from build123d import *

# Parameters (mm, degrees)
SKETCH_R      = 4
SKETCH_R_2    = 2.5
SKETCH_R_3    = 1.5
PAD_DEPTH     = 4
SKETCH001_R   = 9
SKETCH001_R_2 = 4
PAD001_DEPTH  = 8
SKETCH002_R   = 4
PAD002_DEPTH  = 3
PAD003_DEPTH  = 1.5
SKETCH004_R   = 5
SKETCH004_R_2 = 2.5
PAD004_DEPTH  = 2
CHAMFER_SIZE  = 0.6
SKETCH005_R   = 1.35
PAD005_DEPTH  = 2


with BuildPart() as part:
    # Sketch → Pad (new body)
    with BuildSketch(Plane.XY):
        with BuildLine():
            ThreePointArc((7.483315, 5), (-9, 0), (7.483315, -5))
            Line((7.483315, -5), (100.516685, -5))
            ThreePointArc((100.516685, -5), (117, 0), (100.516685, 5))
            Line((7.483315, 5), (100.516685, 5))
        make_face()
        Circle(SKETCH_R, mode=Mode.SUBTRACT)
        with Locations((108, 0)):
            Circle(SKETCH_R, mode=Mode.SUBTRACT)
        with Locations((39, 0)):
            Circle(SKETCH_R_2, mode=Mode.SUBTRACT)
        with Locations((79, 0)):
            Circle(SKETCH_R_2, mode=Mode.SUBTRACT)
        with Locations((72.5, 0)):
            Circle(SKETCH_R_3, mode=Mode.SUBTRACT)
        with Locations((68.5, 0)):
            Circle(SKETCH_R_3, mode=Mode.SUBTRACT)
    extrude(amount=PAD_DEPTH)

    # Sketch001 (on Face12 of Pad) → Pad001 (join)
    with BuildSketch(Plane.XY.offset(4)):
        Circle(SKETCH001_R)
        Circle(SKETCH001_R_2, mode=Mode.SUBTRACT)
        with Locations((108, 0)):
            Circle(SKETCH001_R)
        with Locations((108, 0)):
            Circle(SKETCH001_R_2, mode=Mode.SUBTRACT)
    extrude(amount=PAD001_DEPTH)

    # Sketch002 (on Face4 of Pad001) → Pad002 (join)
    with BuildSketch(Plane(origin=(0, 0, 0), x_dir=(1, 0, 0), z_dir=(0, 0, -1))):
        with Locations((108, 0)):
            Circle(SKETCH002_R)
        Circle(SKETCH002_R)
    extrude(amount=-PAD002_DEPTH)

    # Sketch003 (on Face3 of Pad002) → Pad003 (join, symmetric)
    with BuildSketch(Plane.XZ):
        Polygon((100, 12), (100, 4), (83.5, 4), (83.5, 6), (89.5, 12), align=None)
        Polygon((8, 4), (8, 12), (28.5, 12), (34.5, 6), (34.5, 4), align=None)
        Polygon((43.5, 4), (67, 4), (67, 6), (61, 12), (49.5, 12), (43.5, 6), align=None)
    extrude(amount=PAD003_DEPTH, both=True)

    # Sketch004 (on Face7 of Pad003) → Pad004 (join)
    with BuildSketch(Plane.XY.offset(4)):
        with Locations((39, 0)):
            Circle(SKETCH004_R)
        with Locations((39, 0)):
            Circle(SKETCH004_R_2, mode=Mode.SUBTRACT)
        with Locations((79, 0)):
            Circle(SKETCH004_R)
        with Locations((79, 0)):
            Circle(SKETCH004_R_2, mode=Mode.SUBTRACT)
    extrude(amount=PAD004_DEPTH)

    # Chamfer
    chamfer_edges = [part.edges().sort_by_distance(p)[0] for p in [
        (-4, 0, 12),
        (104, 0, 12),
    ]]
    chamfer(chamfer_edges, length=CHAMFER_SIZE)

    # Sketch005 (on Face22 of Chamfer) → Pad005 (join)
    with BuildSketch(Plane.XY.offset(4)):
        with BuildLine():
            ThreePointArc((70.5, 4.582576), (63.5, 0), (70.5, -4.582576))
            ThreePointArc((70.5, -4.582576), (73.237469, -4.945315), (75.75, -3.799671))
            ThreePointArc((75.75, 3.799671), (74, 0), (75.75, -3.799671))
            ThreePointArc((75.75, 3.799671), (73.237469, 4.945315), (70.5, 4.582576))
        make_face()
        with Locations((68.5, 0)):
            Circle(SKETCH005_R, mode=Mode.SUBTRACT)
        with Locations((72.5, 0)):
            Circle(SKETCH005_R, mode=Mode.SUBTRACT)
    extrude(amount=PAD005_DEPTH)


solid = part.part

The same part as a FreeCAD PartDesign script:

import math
import FreeCAD as App
import Part
import Sketcher
Q = App.Units.Quantity


def edges_at(feature, points):
    """Names of the edges that pass closest to the given points."""
    edges = feature.Shape.Edges
    near = lambda p: min(range(len(edges)), key=lambda i: edges[i].distToShape(Part.Vertex(*p))[0])
    return sorted({f"Edge{near(p) + 1}" for p in points})

doc = App.newDocument("Part")
params = doc.addObject("Spreadsheet::Sheet", "Params")
for row, (alias, value) in enumerate([
    ("sketch1_diameter", "8 mm"),
    ("sketch1_diameter2", "5 mm"),
    ("sketch1_diameter3", "3 mm"),
    ("sketch1_radius", "9 mm"),
    ("pad1_length", "4 mm"),
    ("sketch2_diameter", "18 mm"),
    ("sketch2_diameter2", "8 mm"),
    ("pad2_length", "8 mm"),
    ("sketch3_diameter", "8 mm"),
    ("pad3_length", "3 mm"),
    ("sketch4_height", "8 mm"),
    ("sketch4_height2", "2 mm"),
    ("sketch4_width", "10.5 mm"),
    ("sketch4_width2", "26.5 mm"),
    ("sketch4_width3", "23.5 mm"),
    ("pad4_length", "3 mm"),
    ("sketch5_diameter", "10 mm"),
    ("sketch5_diameter2", "5 mm"),
    ("pad5_length", "2 mm"),
    ("chamfer_size", "0.6 mm"),
    ("sketch6_radius", "5 mm"),
    ("sketch6_diameter", "2.7 mm"),
    ("pad6_length", "2 mm"),
], start=1):
    params.set(f"A{row}", alias)
    params.set(f"B{row}", "=" + value)
    params.setAlias(f"B{row}", alias)

body = doc.addObject("PartDesign::Body", "Body")

# Sketch on XY plane
sketch1 = doc.addObject("Sketcher::SketchObject", "Sketch")
body.addObject(sketch1)
sketch1.AttachmentSupport = (doc.XY_Plane, [""])
sketch1.MapMode = "FlatFace"
sketch1.addGeometry([
    Part.ArcOfCircle(Part.Circle(App.Vector(0, 0, 0), App.Vector(0, 0, 1), 9), math.radians(34), math.radians(326)),  # 0
    Part.LineSegment(App.Vector(7.5, -5, 0), App.Vector(100.5, -5, 0)),  # 1
    Part.ArcOfCircle(Part.Circle(App.Vector(108, 0, 0), App.Vector(0, 0, 1), 9), math.radians(-146), math.radians(146)),  # 2
    Part.LineSegment(App.Vector(100.5, 5, 0), App.Vector(7.5, 5, 0)),  # 3
    Part.Circle(App.Vector(0, 0, 0), App.Vector(0, 0, 1), 4),  # 4
    Part.Circle(App.Vector(39, 0, 0), App.Vector(0, 0, 1), 2.5),  # 5
    Part.Circle(App.Vector(68.5, 0, 0), App.Vector(0, 0, 1), 1.5),  # 6
    Part.Circle(App.Vector(72.5, 0, 0), App.Vector(0, 0, 1), 1.5),  # 7
    Part.Circle(App.Vector(79, 0, 0), App.Vector(0, 0, 1), 2.5),  # 8
    Part.Circle(App.Vector(108, 0, 0), App.Vector(0, 0, 1), 4),  # 9
], False)
sketch1.addConstraint([
    Sketcher.Constraint("Coincident", 0, 2, 1, 1),
    Sketcher.Constraint("Coincident", 1, 2, 2, 1),
    Sketcher.Constraint("Coincident", 2, 2, 3, 1),
    Sketcher.Constraint("Coincident", 3, 2, 0, 1),
    Sketcher.Constraint("Horizontal", 1),
    Sketcher.Constraint("Horizontal", 3),
    Sketcher.Constraint("Coincident", 0, 3, -1, 1),
    Sketcher.Constraint("Coincident", 4, 3, -1, 1),
    Sketcher.Constraint("Coincident", 9, 3, 2, 3),
    Sketcher.Constraint("Equal", 0, 2),
    Sketcher.Constraint("Equal", 6, 7),
    Sketcher.Constraint("Equal", 5, 8),
    Sketcher.Constraint("Equal", 4, 9),
    Sketcher.Constraint("Symmetric", 1, 2, 2, 2, -1),
    Sketcher.Constraint("PointOnObject", 5, 3, -1),
    Sketcher.Constraint("PointOnObject", 6, 3, -1),
    Sketcher.Constraint("PointOnObject", 7, 3, -1),
    Sketcher.Constraint("PointOnObject", 8, 3, -1),
    Sketcher.Constraint("Diameter", 4, Q("8 mm")),
    Sketcher.Constraint("Diameter", 5, Q("5 mm")),
    Sketcher.Constraint("Diameter", 6, Q("3 mm")),
    Sketcher.Constraint("Radius", 0, Q("9 mm")),
    Sketcher.Constraint("DistanceX", -1, 1, 2, 3, Q("108 mm")),
    Sketcher.Constraint("DistanceX", -1, 1, 5, 3, Q("39 mm")),
    Sketcher.Constraint("DistanceX", -1, 1, 8, 3, Q("79 mm")),
    Sketcher.Constraint("DistanceY", 0, 2, -1, 1, Q("5 mm")),
    Sketcher.Constraint("DistanceX", 6, 3, 7, 3, Q("4 mm")),
    Sketcher.Constraint("DistanceX", -1, 1, 6, 3, Q("68.5 mm")),
])
sketch1.setExpression("Constraints[18]", "Params.sketch1_diameter")
sketch1.setExpression("Constraints[19]", "Params.sketch1_diameter2")
sketch1.setExpression("Constraints[20]", "Params.sketch1_diameter3")
sketch1.setExpression("Constraints[21]", "Params.sketch1_radius")
pad1 = doc.addObject("PartDesign::Pad", "Pad")
body.addObject(pad1)
pad1.Profile = sketch1
pad1.setExpression("Length", "Params.pad1_length")

# Sketch on XY plane
sketch2 = doc.addObject("Sketcher::SketchObject", "Sketch001")
body.addObject(sketch2)
sketch2.AttachmentSupport = (doc.XY_Plane, [""])
sketch2.MapMode = "FlatFace"
sketch2.AttachmentOffset = App.Placement(App.Vector(0, 0, 4), App.Rotation())
sketch2.addGeometry([
    Part.Circle(App.Vector(0, 0, 0), App.Vector(0, 0, 1), 9),
    Part.Circle(App.Vector(0, 0, 0), App.Vector(0, 0, 1), 4),
    Part.Circle(App.Vector(108, 0, 0), App.Vector(0, 0, 1), 9),
    Part.Circle(App.Vector(108, 0, 0), App.Vector(0, 0, 1), 4),
], False)
sketch2.addConstraint([
    Sketcher.Constraint("Coincident", 0, 3, -1, 1),
    Sketcher.Constraint("Coincident", 1, 3, -1, 1),
    Sketcher.Constraint("Coincident", 3, 3, 2, 3),
    Sketcher.Constraint("Equal", 0, 2),
    Sketcher.Constraint("Equal", 1, 3),
    Sketcher.Constraint("PointOnObject", 2, 3, -1),
    Sketcher.Constraint("Diameter", 0, Q("18 mm")),
    Sketcher.Constraint("Diameter", 1, Q("8 mm")),
    Sketcher.Constraint("DistanceX", -1, 1, 2, 3, Q("108 mm")),
])
sketch2.setExpression("Constraints[6]", "Params.sketch2_diameter")
sketch2.setExpression("Constraints[7]", "Params.sketch2_diameter2")
pad2 = doc.addObject("PartDesign::Pad", "Pad001")
body.addObject(pad2)
pad2.Profile = sketch2
pad2.setExpression("Length", "Params.pad2_length")

# Sketch on XY plane
sketch3 = doc.addObject("Sketcher::SketchObject", "Sketch002")
body.addObject(sketch3)
sketch3.AttachmentSupport = (doc.XY_Plane, [""])
sketch3.MapMode = "FlatFace"
sketch3.addGeometry([
    Part.Circle(App.Vector(108, 0, 0), App.Vector(0, 0, 1), 4),
    Part.Circle(App.Vector(0, 0, 0), App.Vector(0, 0, 1), 4),
], False)
sketch3.addConstraint([
    Sketcher.Constraint("Coincident", 1, 3, -1, 1),
    Sketcher.Constraint("Equal", 0, 1),
    Sketcher.Constraint("PointOnObject", 0, 3, -1),
    Sketcher.Constraint("Diameter", 0, Q("8 mm")),
    Sketcher.Constraint("DistanceX", -1, 1, 0, 3, Q("108 mm")),
])
sketch3.setExpression("Constraints[3]", "Params.sketch3_diameter")
pad3 = doc.addObject("PartDesign::Pad", "Pad002")
body.addObject(pad3)
pad3.Profile = sketch3
pad3.setExpression("Length", "Params.pad3_length")

# Sketch on XZ plane
sketch4 = doc.addObject("Sketcher::SketchObject", "Sketch003")
body.addObject(sketch4)
sketch4.AttachmentSupport = (doc.XZ_Plane, [""])
sketch4.MapMode = "FlatFace"
sketch4.addGeometry([
    Part.LineSegment(App.Vector(100, 4, 0), App.Vector(100, 12, 0)),  # 0
    Part.LineSegment(App.Vector(100, 12, 0), App.Vector(89.5, 12, 0)),  # 1
    Part.LineSegment(App.Vector(89.5, 12, 0), App.Vector(83.5, 6, 0)),  # 2
    Part.LineSegment(App.Vector(83.5, 6, 0), App.Vector(83.5, 4, 0)),  # 3
    Part.LineSegment(App.Vector(83.5, 4, 0), App.Vector(100, 4, 0)),  # 4
    Part.LineSegment(App.Vector(8, 12, 0), App.Vector(8, 4, 0)),  # 5
    Part.LineSegment(App.Vector(8, 4, 0), App.Vector(34.5, 4, 0)),  # 6
    Part.LineSegment(App.Vector(34.5, 4, 0), App.Vector(34.5, 6, 0)),  # 7
    Part.LineSegment(App.Vector(34.5, 6, 0), App.Vector(28.5, 12, 0)),  # 8
    Part.LineSegment(App.Vector(28.5, 12, 0), App.Vector(8, 12, 0)),  # 9
    Part.LineSegment(App.Vector(43.5, 4, 0), App.Vector(67, 4, 0)),  # 10
    Part.LineSegment(App.Vector(67, 4, 0), App.Vector(67, 6, 0)),  # 11
    Part.LineSegment(App.Vector(67, 6, 0), App.Vector(61, 12, 0)),  # 12
    Part.LineSegment(App.Vector(61, 12, 0), App.Vector(49.5, 12, 0)),  # 13
    Part.LineSegment(App.Vector(49.5, 12, 0), App.Vector(43.5, 6, 0)),  # 14
    Part.LineSegment(App.Vector(43.5, 6, 0), App.Vector(43.5, 4, 0)),  # 15
], False)
sketch4.addConstraint([
    Sketcher.Constraint("Coincident", 0, 2, 1, 1),
    Sketcher.Constraint("Coincident", 1, 2, 2, 1),
    Sketcher.Constraint("Coincident", 2, 2, 3, 1),
    Sketcher.Constraint("Coincident", 3, 2, 4, 1),
    Sketcher.Constraint("Coincident", 4, 2, 0, 1),
    Sketcher.Constraint("Coincident", 5, 2, 6, 1),
    Sketcher.Constraint("Coincident", 6, 2, 7, 1),
    Sketcher.Constraint("Coincident", 7, 2, 8, 1),
    Sketcher.Constraint("Coincident", 8, 2, 9, 1),
    Sketcher.Constraint("Coincident", 9, 2, 5, 1),
    Sketcher.Constraint("Coincident", 10, 2, 11, 1),
    Sketcher.Constraint("Coincident", 11, 2, 12, 1),
    Sketcher.Constraint("Coincident", 12, 2, 13, 1),
    Sketcher.Constraint("Coincident", 13, 2, 14, 1),
    Sketcher.Constraint("Coincident", 14, 2, 15, 1),
    Sketcher.Constraint("Coincident", 15, 2, 10, 1),
    Sketcher.Constraint("Vertical", 0),
    Sketcher.Constraint("Horizontal", 1),
    Sketcher.Constraint("Vertical", 3),
    Sketcher.Constraint("Horizontal", 4),
    Sketcher.Constraint("Vertical", 5),
    Sketcher.Constraint("Horizontal", 6),
    Sketcher.Constraint("Vertical", 7),
    Sketcher.Constraint("Horizontal", 9),
    Sketcher.Constraint("Horizontal", 10),
    Sketcher.Constraint("Vertical", 11),
    Sketcher.Constraint("Horizontal", 13),
    Sketcher.Constraint("Vertical", 15),
    Sketcher.Constraint("Perpendicular", 2, 8),
    Sketcher.Constraint("Parallel", 8, 12),
    Sketcher.Constraint("Perpendicular", 12, 14),
    Sketcher.Constraint("Horizontal", 4, 2, 5, 2),
    Sketcher.Constraint("Horizontal", 2, 2, 7, 2),
    Sketcher.Constraint("Horizontal", 1, 2, 8, 2),
    Sketcher.Constraint("Horizontal", 6, 2, 10, 2),
    Sketcher.Constraint("Horizontal", 7, 2, 11, 2),
    Sketcher.Constraint("Horizontal", 9, 2, 12, 2),
    Sketcher.Constraint("Horizontal", 11, 2, 14, 2),
    Sketcher.Constraint("Equal", 2, 8),
    Sketcher.Constraint("DistanceY", 0, 1, 0, 2, Q("8 mm")),
    Sketcher.Constraint("DistanceY", 3, 2, 3, 1, Q("2 mm")),
    Sketcher.Constraint("DistanceX", 1, 2, 1, 1, Q("10.5 mm")),
    Sketcher.Constraint("DistanceX", 6, 1, 6, 2, Q("26.5 mm")),
    Sketcher.Constraint("DistanceX", 10, 1, 10, 2, Q("23.5 mm")),
    Sketcher.Constraint("DistanceX", -1, 1, 0, 2, Q("100 mm")),
    Sketcher.Constraint("DistanceY", -1, 1, 0, 2, Q("12 mm")),
    Sketcher.Constraint("DistanceX", -1, 1, 5, 2, Q("8 mm")),
    Sketcher.Constraint("DistanceX", -1, 1, 10, 2, Q("67 mm")),
])
sketch4.setExpression("Constraints[39]", "Params.sketch4_height")
sketch4.setExpression("Constraints[40]", "Params.sketch4_height2")
sketch4.setExpression("Constraints[41]", "Params.sketch4_width")
sketch4.setExpression("Constraints[42]", "Params.sketch4_width2")
sketch4.setExpression("Constraints[43]", "Params.sketch4_width3")
pad4 = doc.addObject("PartDesign::Pad", "Pad003")
body.addObject(pad4)
pad4.Profile = sketch4
pad4.setExpression("Length", "Params.pad4_length")
pad4.Midplane = True

# Sketch on XY plane
sketch5 = doc.addObject("Sketcher::SketchObject", "Sketch004")
body.addObject(sketch5)
sketch5.AttachmentSupport = (doc.XY_Plane, [""])
sketch5.MapMode = "FlatFace"
sketch5.AttachmentOffset = App.Placement(App.Vector(0, 0, 4), App.Rotation())
sketch5.addGeometry([
    Part.Circle(App.Vector(39, 0, 0), App.Vector(0, 0, 1), 5),
    Part.Circle(App.Vector(39, 0, 0), App.Vector(0, 0, 1), 2.5),
    Part.Circle(App.Vector(79, 0, 0), App.Vector(0, 0, 1), 5),
    Part.Circle(App.Vector(79, 0, 0), App.Vector(0, 0, 1), 2.5),
], False)
sketch5.addConstraint([
    Sketcher.Constraint("Coincident", 1, 3, 0, 3),
    Sketcher.Constraint("Coincident", 3, 3, 2, 3),
    Sketcher.Constraint("Equal", 0, 2),
    Sketcher.Constraint("Equal", 1, 3),
    Sketcher.Constraint("PointOnObject", 0, 3, -1),
    Sketcher.Constraint("PointOnObject", 2, 3, -1),
    Sketcher.Constraint("Diameter", 0, Q("10 mm")),
    Sketcher.Constraint("Diameter", 1, Q("5 mm")),
    Sketcher.Constraint("DistanceX", -1, 1, 0, 3, Q("39 mm")),
    Sketcher.Constraint("DistanceX", -1, 1, 2, 3, Q("79 mm")),
])
sketch5.setExpression("Constraints[6]", "Params.sketch5_diameter")
sketch5.setExpression("Constraints[7]", "Params.sketch5_diameter2")
pad5 = doc.addObject("PartDesign::Pad", "Pad004")
body.addObject(pad5)
pad5.Profile = sketch5
pad5.setExpression("Length", "Params.pad5_length")
doc.recompute()

chamfer = doc.addObject("PartDesign::Chamfer", "Chamfer")
body.addObject(chamfer)
chamfer.Base = (pad5, edges_at(pad5, [(-4, 0, 12), (104, 0, 12)]))
chamfer.setExpression("Size", "Params.chamfer_size")

# Sketch on XY plane
sketch6 = doc.addObject("Sketcher::SketchObject", "Sketch005")
body.addObject(sketch6)
sketch6.AttachmentSupport = (doc.XY_Plane, [""])
sketch6.MapMode = "FlatFace"
sketch6.AttachmentOffset = App.Placement(App.Vector(0, 0, 4), App.Rotation())
sketch6.addGeometry([
    Part.ArcOfCircle(Part.Circle(App.Vector(68.5, 0, 0), App.Vector(0, 0, 1), 5), math.radians(66), math.radians(294)),  # 0
    Part.ArcOfCircle(Part.Circle(App.Vector(72.5, 0, 0), App.Vector(0, 0, 1), 5), math.radians(-114), math.radians(-49)),  # 1
    Part.ArcOfCircle(Part.Circle(App.Vector(79, 0, 0), App.Vector(0, 0, 1), 5), math.radians(131), math.radians(229)),  # 2
    Part.ArcOfCircle(Part.Circle(App.Vector(72.5, 0, 0), App.Vector(0, 0, 1), 5), math.radians(49), math.radians(114)),  # 3
    Part.Circle(App.Vector(68.5, 0, 0), App.Vector(0, 0, 1), 1.4),  # 4
    Part.Circle(App.Vector(72.5, 0, 0), App.Vector(0, 0, 1), 1.4),  # 5
], False)
sketch6.addConstraint([
    Sketcher.Constraint("Coincident", 0, 2, 1, 1),
    Sketcher.Constraint("Coincident", 1, 2, 2, 2),
    Sketcher.Constraint("Coincident", 2, 1, 3, 1),
    Sketcher.Constraint("Coincident", 3, 2, 0, 1),
    Sketcher.Constraint("Coincident", 3, 3, 1, 3),
    Sketcher.Constraint("Coincident", 4, 3, 0, 3),
    Sketcher.Constraint("Coincident", 5, 3, 1, 3),
    Sketcher.Constraint("Equal", 0, 1),
    Sketcher.Constraint("Equal", 1, 2),
    Sketcher.Constraint("Equal", 2, 3),
    Sketcher.Constraint("Equal", 4, 5),
    Sketcher.Constraint("Symmetric", 1, 2, 2, 1, -1),
    Sketcher.Constraint("PointOnObject", 0, 3, -1),
    Sketcher.Constraint("Radius", 0, Q("5 mm")),
    Sketcher.Constraint("Diameter", 4, Q("2.7 mm")),
    Sketcher.Constraint("DistanceX", -1, 1, 2, 3, Q("79 mm")),
    Sketcher.Constraint("DistanceX", 0, 3, 1, 3, Q("3.999999 mm")),
    Sketcher.Constraint("DistanceX", -1, 1, 0, 3, Q("68.5 mm")),
])
sketch6.setExpression("Constraints[13]", "Params.sketch6_radius")
sketch6.setExpression("Constraints[14]", "Params.sketch6_diameter")
pad6 = doc.addObject("PartDesign::Pad", "Pad005")
body.addObject(pad6)
pad6.Profile = sketch6
pad6.setExpression("Length", "Params.pad6_length")

doc.recompute()
